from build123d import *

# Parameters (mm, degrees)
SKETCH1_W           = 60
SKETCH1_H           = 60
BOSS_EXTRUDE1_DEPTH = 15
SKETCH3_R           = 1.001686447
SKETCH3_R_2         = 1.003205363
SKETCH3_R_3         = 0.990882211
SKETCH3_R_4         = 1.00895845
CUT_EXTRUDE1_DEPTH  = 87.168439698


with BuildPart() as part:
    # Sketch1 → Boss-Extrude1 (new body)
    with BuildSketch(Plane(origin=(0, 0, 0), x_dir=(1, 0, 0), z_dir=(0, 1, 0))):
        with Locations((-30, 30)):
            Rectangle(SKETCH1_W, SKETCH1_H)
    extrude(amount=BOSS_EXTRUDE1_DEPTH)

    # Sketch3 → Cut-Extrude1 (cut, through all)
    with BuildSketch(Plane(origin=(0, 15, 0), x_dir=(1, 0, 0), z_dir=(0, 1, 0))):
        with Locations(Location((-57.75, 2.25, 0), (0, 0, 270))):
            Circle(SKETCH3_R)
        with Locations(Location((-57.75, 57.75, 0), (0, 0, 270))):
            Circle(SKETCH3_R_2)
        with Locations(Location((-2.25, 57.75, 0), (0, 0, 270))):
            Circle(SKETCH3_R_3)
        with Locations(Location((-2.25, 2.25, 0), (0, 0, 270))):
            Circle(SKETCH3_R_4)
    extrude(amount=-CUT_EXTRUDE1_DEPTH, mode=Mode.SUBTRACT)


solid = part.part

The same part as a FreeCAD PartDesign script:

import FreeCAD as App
import Part
import Sketcher

V = App.Vector
Q = App.Units.Quantity


def add_polygon(sketch, points):
    """Adds a closed chain of lines whose ends are joined by coincident constraints."""
    first, n = sketch.GeometryCount, len(points)
    for a, b in zip(points, points[1:] + points[:1]):
        sketch.addGeometry(Part.LineSegment(App.Vector(*a, 0), App.Vector(*b, 0)), False)
    for i in range(n):
        sketch.addConstraint(Sketcher.Constraint("Coincident", first + i, 2, first + (i + 1) % n, 1))

doc = App.newDocument("Part")
body = doc.addObject("PartDesign::Body", "Body")

# Sketch on XZ plane
sketch1 = body.newObject("Sketcher::SketchObject", "Sketch")
sketch1.AttachmentSupport = (doc.getObject("XZ_Plane"), [""])
sketch1.MapMode = "FlatFace"
add_polygon(sketch1, [(-60, -60), (-60, 0), (0, 0), (0, -60)])  # lines 0-3
sketch1.addConstraint([
    Sketcher.Constraint("Vertical", 0),
    Sketcher.Constraint("Horizontal", 1),
    Sketcher.Constraint("Vertical", 2),
    Sketcher.Constraint("Horizontal", 3),
    Sketcher.Constraint("Coincident", 1, 2, -1, 1),
    Sketcher.Constraint("Equal", 3, 0),
    Sketcher.Constraint("DistanceX", 1, 1, 1, 2, Q("60 mm")),
])
pad1 = body.newObject("PartDesign::Pad", "Pad")
pad1.Profile = sketch1
pad1.Length = 15
pad1.Reversed = True

# Sketch on XZ plane
sketch2 = body.newObject("Sketcher::SketchObject", "Sketch001")
sketch2.AttachmentSupport = (doc.getObject("XZ_Plane"), [""])
sketch2.MapMode = "FlatFace"
sketch2.AttachmentOffset = App.Placement(V(0, 0, -15), App.Rotation())
sketch2.addGeometry([
    Part.Circle(V(-57.8, -2.2, 0), V(0, 0, 1), 1),
    Part.Circle(V(-57.8, -57.8, 0), V(0, 0, 1), 1),
    Part.Circle(V(-2.2, -57.8, 0), V(0, 0, 1), 1),
    Part.Circle(V(-2.2, -2.2, 0), V(0, 0, 1), 1),
], False)
sketch2.addConstraint([
    Sketcher.Constraint("Horizontal", 1, 3, 2, 3),
    Sketcher.Constraint("Horizontal", 0, 3, 3, 3),
    Sketcher.Constraint("Vertical", 0, 3, 1, 3),
    Sketcher.Constraint("Vertical", 2, 3, 3, 3),
    Sketcher.Constraint("DistanceY", 1, 3, 0, 3, Q("55.5 mm")),
    Sketcher.Constraint("DistanceX", 1, 3, 2, 3, Q("55.5 mm")),
    Sketcher.Constraint("Diameter", 1, Q("2.006411 mm")),
    Sketcher.Constraint("DistanceX", 0, 3, -1, 1, Q("57.75 mm")),
    Sketcher.Constraint("DistanceY", 0, 3, -1, 1, Q("2.25 mm")),
    Sketcher.Constraint("Diameter", 0, Q("2.003373 mm")),
    Sketcher.Constraint("Diameter", 2, Q("1.981764 mm")),
    Sketcher.Constraint("Diameter", 3, Q("2.017917 mm")),
])
pocket1 = body.newObject("PartDesign::Pocket", "Pocket")
pocket1.Profile = sketch2
pocket1.Type = "ThroughAll"
pocket1.Reversed = True

doc.recompute()
